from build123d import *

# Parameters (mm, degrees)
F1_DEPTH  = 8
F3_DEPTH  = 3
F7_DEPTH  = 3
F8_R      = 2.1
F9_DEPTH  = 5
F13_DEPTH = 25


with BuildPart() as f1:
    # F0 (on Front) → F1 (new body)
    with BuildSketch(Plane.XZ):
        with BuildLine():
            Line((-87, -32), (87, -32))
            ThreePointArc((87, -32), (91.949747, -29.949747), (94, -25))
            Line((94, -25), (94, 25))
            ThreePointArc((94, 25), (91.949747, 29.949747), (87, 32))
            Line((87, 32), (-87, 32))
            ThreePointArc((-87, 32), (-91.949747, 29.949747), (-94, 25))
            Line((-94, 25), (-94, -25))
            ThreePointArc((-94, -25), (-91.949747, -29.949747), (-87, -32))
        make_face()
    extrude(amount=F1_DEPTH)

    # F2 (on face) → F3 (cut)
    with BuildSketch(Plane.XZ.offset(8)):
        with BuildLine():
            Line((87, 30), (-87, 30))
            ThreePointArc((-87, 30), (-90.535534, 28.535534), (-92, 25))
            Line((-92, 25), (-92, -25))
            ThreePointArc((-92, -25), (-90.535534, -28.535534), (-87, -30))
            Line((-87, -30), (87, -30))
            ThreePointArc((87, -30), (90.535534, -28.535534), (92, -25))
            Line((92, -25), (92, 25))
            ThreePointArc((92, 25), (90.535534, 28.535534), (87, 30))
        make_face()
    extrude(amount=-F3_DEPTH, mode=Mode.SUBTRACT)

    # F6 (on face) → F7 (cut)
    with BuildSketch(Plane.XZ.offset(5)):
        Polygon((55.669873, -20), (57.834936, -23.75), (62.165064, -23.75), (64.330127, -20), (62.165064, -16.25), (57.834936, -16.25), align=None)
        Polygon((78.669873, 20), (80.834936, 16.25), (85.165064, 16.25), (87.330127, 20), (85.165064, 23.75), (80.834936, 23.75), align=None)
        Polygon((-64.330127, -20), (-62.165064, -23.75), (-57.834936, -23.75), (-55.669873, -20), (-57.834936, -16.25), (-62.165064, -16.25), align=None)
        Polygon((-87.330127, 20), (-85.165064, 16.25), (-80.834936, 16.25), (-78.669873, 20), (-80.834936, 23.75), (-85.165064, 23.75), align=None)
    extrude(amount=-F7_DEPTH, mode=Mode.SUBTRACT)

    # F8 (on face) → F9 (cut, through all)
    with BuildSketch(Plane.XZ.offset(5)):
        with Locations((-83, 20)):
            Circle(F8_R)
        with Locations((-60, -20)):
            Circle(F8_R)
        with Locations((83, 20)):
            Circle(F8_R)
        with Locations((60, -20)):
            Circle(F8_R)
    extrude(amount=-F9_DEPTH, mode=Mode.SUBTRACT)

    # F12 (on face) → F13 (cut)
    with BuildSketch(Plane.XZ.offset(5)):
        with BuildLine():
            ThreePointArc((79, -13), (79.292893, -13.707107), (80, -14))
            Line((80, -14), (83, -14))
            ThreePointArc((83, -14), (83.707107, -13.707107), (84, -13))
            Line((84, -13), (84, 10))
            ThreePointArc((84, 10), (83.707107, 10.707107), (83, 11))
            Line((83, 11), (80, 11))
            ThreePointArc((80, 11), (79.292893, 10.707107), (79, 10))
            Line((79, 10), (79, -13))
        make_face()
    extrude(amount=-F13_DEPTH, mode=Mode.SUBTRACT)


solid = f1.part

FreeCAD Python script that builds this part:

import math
import FreeCAD as App
import Part
import Sketcher
from FreeCAD import Vector
Q = App.Units.Quantity

doc = App.newDocument("Part")
body = doc.addObject("PartDesign::Body", "Body")

sketch1 = body.newObject("Sketcher::SketchObject", "Sketch")
sketch1.AttachmentSupport = (doc.getObject("XZ_Plane"), [""])
sketch1.MapMode = "FlatFace"
sketch1.addGeometry([
    Part.LineSegment(Vector(-87, -32, 0), Vector(87, -32, 0)),
    Part.ArcOfCircle(Part.Circle(Vector(87, -25, 0), Vector(0, 0, 1), 7), math.radians(-90), math.radians(0)),
    Part.LineSegment(Vector(94, -25, 0), Vector(94, 25, 0)),
    Part.ArcOfCircle(Part.Circle(Vector(87, 25, 0), Vector(0, 0, 1), 7), math.radians(0), math.radians(90)),
    Part.LineSegment(Vector(87, 32, 0), Vector(-87, 32, 0)),
    Part.ArcOfCircle(Part.Circle(Vector(-87, 25, 0), Vector(0, 0, 1), 7), math.radians(90), math.radians(180)),
    Part.LineSegment(Vector(-94, 25, 0), Vector(-94, -25, 0)),
    Part.ArcOfCircle(Part.Circle(Vector(-87, -25, 0), Vector(0, 0, 1), 7), math.radians(-180), math.radians(-90)),
], False)
sketch1.addConstraint([
    Sketcher.Constraint("Tangent", 0, 2, 1, 1),
    Sketcher.Constraint("Tangent", 1, 2, 2, 1),
    Sketcher.Constraint("Tangent", 2, 2, 3, 1),
    Sketcher.Constraint("Tangent", 3, 2, 4, 1),
    Sketcher.Constraint("Tangent", 4, 2, 5, 1),
    Sketcher.Constraint("Tangent", 5, 2, 6, 1),
    Sketcher.Constraint("Tangent", 6, 2, 7, 1),
    Sketcher.Constraint("Tangent", 7, 2, 0, 1),
    Sketcher.Constraint("Horizontal", 0),
    Sketcher.Constraint("Vertical", 2),
    Sketcher.Constraint("Horizontal", 4),
    Sketcher.Constraint("Vertical", 6),
    Sketcher.Constraint("Equal", 1, 3),
    Sketcher.Constraint("Equal", 3, 5),
    Sketcher.Constraint("Equal", 5, 7),
    Sketcher.Constraint("Symmetric", 1, 3, 5, 3, -1, 1),
    Sketcher.Constraint("Radius", 1, Q("7.000002 mm")),
    Sketcher.Constraint("DistanceX", 0, 1, 0, 2, Q("174 mm")),
    Sketcher.Constraint("DistanceY", 2, 1, 2, 2, Q("50 mm")),
])
pad1 = body.newObject("PartDesign::Pad", "Pad")
pad1.Profile = sketch1
pad1.Length = 8

sketch2 = body.newObject("Sketcher::SketchObject", "Sketch001")
sketch2.AttachmentSupport = (doc.getObject("XZ_Plane"), [""])
sketch2.MapMode = "FlatFace"
sketch2.AttachmentOffset = App.Placement(Vector(0, 0, 8), App.Rotation())
sketch2.addGeometry([
    Part.LineSegment(Vector(87, 30, 0), Vector(-87, 30, 0)),
    Part.ArcOfCircle(Part.Circle(Vector(-87, 25, 0), Vector(0, 0, 1), 5), math.radians(90), math.radians(180)),
    Part.LineSegment(Vector(-92, 25, 0), Vector(-92, -25, 0)),
    Part.ArcOfCircle(Part.Circle(Vector(-87, -25, 0), Vector(0, 0, 1), 5), math.radians(180), math.radians(270)),
    Part.LineSegment(Vector(-87, -30, 0), Vector(87, -30, 0)),
    Part.ArcOfCircle(Part.Circle(Vector(87, -25, 0), Vector(0, 0, 1), 5), math.radians(-90), math.radians(0)),
    Part.LineSegment(Vector(92, -25, 0), Vector(92, 25, 0)),
    Part.ArcOfCircle(Part.Circle(Vector(87, 25, 0), Vector(0, 0, 1), 5), math.radians(0), math.radians(90)),
], False)
sketch2.addConstraint([
    Sketcher.Constraint("Tangent", 0, 2, 1, 1),
    Sketcher.Constraint("Tangent", 1, 2, 2, 1),
    Sketcher.Constraint("Tangent", 2, 2, 3, 1),
    Sketcher.Constraint("Tangent", 3, 2, 4, 1),
    Sketcher.Constraint("Tangent", 4, 2, 5, 1),
    Sketcher.Constraint("Tangent", 5, 2, 6, 1),
    Sketcher.Constraint("Tangent", 6, 2, 7, 1),
    Sketcher.Constraint("Tangent", 7, 2, 0, 1),
    Sketcher.Constraint("Horizontal", 0),
    Sketcher.Constraint("Vertical", 2),
    Sketcher.Constraint("Horizontal", 4),
    Sketcher.Constraint("Vertical", 6),
    Sketcher.Constraint("Equal", 1, 3),
    Sketcher.Constraint("Equal", 3, 5),
    Sketcher.Constraint("Equal", 5, 7),
    Sketcher.Constraint("Symmetric", 1, 3, 5, 3, -1, 1),
    Sketcher.Constraint("Radius", 1, Q("5 mm")),
    Sketcher.Constraint("DistanceX", 0, 2, 0, 1, Q("174 mm")),
    Sketcher.Constraint("DistanceY", 2, 2, 2, 1, Q("50 mm")),
])
pocket1 = body.newObject("PartDesign::Pocket", "Pocket")
pocket1.Profile = sketch2
pocket1.Length = 3

sketch3 = body.newObject("Sketcher::SketchObject", "Sketch002")
sketch3.AttachmentSupport = (doc.getObject("XZ_Plane"), [""])
sketch3.MapMode = "FlatFace"
sketch3.AttachmentOffset = App.Placement(Vector(0, 0, 5), App.Rotation())
sketch3.addGeometry([
    Part.LineSegment(Vector(55.7, -20, 0), Vector(57.8, -23.8, 0)),
    Part.LineSegment(Vector(57.8, -23.8, 0), Vector(62.2, -23.8, 0)),
    Part.LineSegment(Vector(62.2, -23.8, 0), Vector(64.3, -20, 0)),
    Part.LineSegment(Vector(64.3, -20, 0), Vector(62.2, -16.2, 0)),
    Part.LineSegment(Vector(62.2, -16.2, 0), Vector(57.8, -16.2, 0)),
    Part.LineSegment(Vector(57.8, -16.2, 0), Vector(55.7, -20, 0)),
    Part.LineSegment(Vector(78.7, 20, 0), Vector(80.8, 16.2, 0)),
    Part.LineSegment(Vector(80.8, 16.2, 0), Vector(85.2, 16.2, 0)),
    Part.LineSegment(Vector(85.2, 16.2, 0), Vector(87.3, 20, 0)),
    Part.LineSegment(Vector(87.3, 20, 0), Vector(85.2, 23.8, 0)),
    Part.LineSegment(Vector(85.2, 23.8, 0), Vector(80.8, 23.8, 0)),
    Part.LineSegment(Vector(80.8, 23.8, 0), Vector(78.7, 20, 0)),
    Part.LineSegment(Vector(-64.3, -20, 0), Vector(-62.2, -23.8, 0)),
    Part.LineSegment(Vector(-62.2, -23.8, 0), Vector(-57.8, -23.8, 0)),
    Part.LineSegment(Vector(-57.8, -23.8, 0), Vector(-55.7, -20, 0)),
    Part.LineSegment(Vector(-55.7, -20, 0), Vector(-57.8, -16.2, 0)),
    Part.LineSegment(Vector(-57.8, -16.2, 0), Vector(-62.2, -16.2, 0)),
    Part.LineSegment(Vector(-62.2, -16.2, 0), Vector(-64.3, -20, 0)),
    Part.LineSegment(Vector(-87.3, 20, 0), Vector(-85.2, 16.2, 0)),
    Part.LineSegment(Vector(-85.2, 16.2, 0), Vector(-80.8, 16.2, 0)),
    Part.LineSegment(Vector(-80.8, 16.2, 0), Vector(-78.7, 20, 0)),
    Part.LineSegment(Vector(-78.7, 20, 0), Vector(-80.8, 23.8, 0)),
    Part.LineSegment(Vector(-80.8, 23.8, 0), Vector(-85.2, 23.8, 0)),
    Part.LineSegment(Vector(-85.2, 23.8, 0), Vector(-87.3, 20, 0)),
], False)
sketch3.addConstraint([
    Sketcher.Constraint("Coincident", 0, 2, 1, 1),
    Sketcher.Constraint("Coincident", 1, 2, 2, 1),
    Sketcher.Constraint("Coincident", 2, 2, 3, 1),
    Sketcher.Constraint("Coincident", 3, 2, 4, 1),
    Sketcher.Constraint("Coincident", 4, 2, 5, 1),
    Sketcher.Constraint("Coincident", 5, 2, 0, 1),
    Sketcher.Constraint("Coincident", 6, 2, 7, 1),
    Sketcher.Constraint("Coincident", 7, 2, 8, 1),
    Sketcher.Constraint("Coincident", 8, 2, 9, 1),
    Sketcher.Constraint("Coincident", 9, 2, 10, 1),
    Sketcher.Constraint("Coincident", 10, 2, 11, 1),
    Sketcher.Constraint("Coincident", 11, 2, 6, 1),
    Sketcher.Constraint("Coincident", 12, 2, 13, 1),
    Sketcher.Constraint("Coincident", 13, 2, 14, 1),
    Sketcher.Constraint("Coincident", 14, 2, 15, 1),
    Sketcher.Constraint("Coincident", 15, 2, 16, 1),
    Sketcher.Constraint("Coincident", 16, 2, 17, 1),
    Sketcher.Constraint("Coincident", 17, 2, 12, 1),
    Sketcher.Constraint("Coincident", 18, 2, 19, 1),
    Sketcher.Constraint("Coincident", 19, 2, 20, 1),
    Sketcher.Constraint("Coincident", 20, 2, 21, 1),
    Sketcher.Constraint("Coincident", 21, 2, 22, 1),
    Sketcher.Constraint("Coincident", 22, 2, 23, 1),
    Sketcher.Constraint("Coincident", 23, 2, 18, 1),
    Sketcher.Constraint("Horizontal", 1),
    Sketcher.Constraint("Horizontal", 4),
    Sketcher.Constraint("Horizontal", 7),
    Sketcher.Constraint("Horizontal", 10),
    Sketcher.Constraint("Horizontal", 13),
    Sketcher.Constraint("Horizontal", 16),
    Sketcher.Constraint("Horizontal", 19),
    Sketcher.Constraint("Horizontal", 22),
    Sketcher.Constraint("Symmetric", 1, 2, 12, 2, -2),
    Sketcher.Constraint("Symmetric", 5, 2, 14, 2, -2),
    Sketcher.Constraint("Symmetric", 4, 2, 15, 2, -2),
    Sketcher.Constraint("Symmetric", 2, 2, 17, 2, -2),
    Sketcher.Constraint("Symmetric", 7, 2, 18, 2, -2),
    Sketcher.Constraint("Symmetric", 11, 2, 20, 2, -2),
    Sketcher.Constraint("Symmetric", 10, 2, 21, 2, -2),
    Sketcher.Constraint("Symmetric", 8, 2, 23, 2, -2),
    Sketcher.Constraint("Parallel", 0, 3),
    Sketcher.Constraint("Parallel", 2, 5),
    Sketcher.Constraint("Parallel", 3, 6),
    Sketcher.Constraint("Parallel", 5, 8),
    Sketcher.Constraint("Parallel", 6, 9),
    Sketcher.Constraint("Parallel", 8, 11),
    Sketcher.Constraint("Parallel", 9, 12),
    Sketcher.Constraint("Parallel", 11, 14),
    Sketcher.Constraint("Parallel", 14, 17),
    Sketcher.Constraint("Parallel", 17, 20),
    Sketcher.Constraint("Parallel", 20, 23),
    Sketcher.Constraint("Horizontal", 2, 2, 5, 2),
    Sketcher.Constraint("Horizontal", 8, 2, 11, 2),
    Sketcher.Constraint("Vertical", 1, 2, 3, 2),
    Sketcher.Constraint("Vertical", 7, 2, 9, 2),
    Sketcher.Constraint("Equal", 4, 7),
    Sketcher.Constraint("Equal", 5, 6),
    Sketcher.Constraint("Angle", 0, Q("-60.000006 deg")),
    Sketcher.Constraint("DistanceY", 2, 2, -1, 1, Q("20 mm")),
    Sketcher.Constraint("DistanceY", -1, 1, 8, 2, Q("20 mm")),
    Sketcher.Constraint("DistanceX", 4, 2, 6, 2, Q("23 mm")),
    Sketcher.Constraint("DistanceX", 12, 2, 0, 2, Q("120 mm")),
    Sketcher.Constraint("DistanceY", 1, 2, 3, 2, Q("7.5 mm")),
    Sketcher.Constraint("DistanceX", 1, 1, 1, 2, Q("4.330128 mm")),
])
pocket2 = body.newObject("PartDesign::Pocket", "Pocket001")
pocket2.Profile = sketch3
pocket2.Length = 3

sketch4 = body.newObject("Sketcher::SketchObject", "Sketch003")
sketch4.AttachmentSupport = (doc.getObject("XZ_Plane"), [""])
sketch4.MapMode = "FlatFace"
sketch4.AttachmentOffset = App.Placement(Vector(0, 0, 5), App.Rotation())
sketch4.addGeometry([
    Part.Circle(Vector(-83, 20, 0), Vector(0, 0, 1), 2.1),
    Part.Circle(Vector(-60, -20, 0), Vector(0, 0, 1), 2.1),
    Part.Circle(Vector(83, 20, 0), Vector(0, 0, 1), 2.1),
    Part.Circle(Vector(60, -20, 0), Vector(0, 0, 1), 2.1),
], False)
sketch4.addConstraint([
    Sketcher.Constraint("Equal", 0, 1),
    Sketcher.Constraint("Equal", 1, 2),
    Sketcher.Constraint("Equal", 2, 3),
    Sketcher.Constraint("Symmetric", 0, 3, 2, 3, -2),
    Sketcher.Constraint("Symmetric", 1, 3, 3, 3, -2),
    Sketcher.Constraint("Diameter", 0, Q("4.2 mm")),
    Sketcher.Constraint("DistanceX", 0, 3, -1, 1, Q("83 mm")),
    Sketcher.Constraint("DistanceY", -1, 1, 0, 3, Q("20 mm")),
    Sketcher.Constraint("DistanceX", 1, 3, -1, 1, Q("60 mm")),
    Sketcher.Constraint("DistanceY", 1, 3, -1, 1, Q("20 mm")),
])
pocket3 = body.newObject("PartDesign::Pocket", "Pocket002")
pocket3.Profile = sketch4
pocket3.Type = "ThroughAll"

sketch5 = body.newObject("Sketcher::SketchObject", "Sketch004")
sketch5.AttachmentSupport = (doc.getObject("XZ_Plane"), [""])
sketch5.MapMode = "FlatFace"
sketch5.AttachmentOffset = App.Placement(Vector(0, 0, 5), App.Rotation())
sketch5.addGeometry([
    Part.ArcOfCircle(Part.Circle(Vector(80, -13, 0), Vector(0, 0, 1), 1), math.radians(180), math.radians(270)),
    Part.LineSegment(Vector(80, -14, 0), Vector(83, -14, 0)),
    Part.ArcOfCircle(Part.Circle(Vector(83, -13, 0), Vector(0, 0, 1), 1), math.radians(-90), math.radians(0)),
    Part.LineSegment(Vector(84, -13, 0), Vector(84, 10, 0)),
    Part.ArcOfCircle(Part.Circle(Vector(83, 10, 0), Vector(0, 0, 1), 1), math.radians(0), math.radians(90)),
    Part.LineSegment(Vector(83, 11, 0), Vector(80, 11, 0)),
    Part.ArcOfCircle(Part.Circle(Vector(80, 10, 0), Vector(0, 0, 1), 1), math.radians(90), math.radians(180)),
    Part.LineSegment(Vector(79, 10, 0), Vector(79, -13, 0)),
], False)
sketch5.addConstraint([
    Sketcher.Constraint("Tangent", 0, 2, 1, 1),
    Sketcher.Constraint("Tangent", 1, 2, 2, 1),
    Sketcher.Constraint("Tangent", 2, 2, 3, 1),
    Sketcher.Constraint("Tangent", 3, 2, 4, 1),
    Sketcher.Constraint("Tangent", 4, 2, 5, 1),
    Sketcher.Constraint("Tangent", 5, 2, 6, 1),
    Sketcher.Constraint("Tangent", 6, 2, 7, 1),
    Sketcher.Constraint("Tangent", 7, 2, 0, 1),
    Sketcher.Constraint("Horizontal", 1),
    Sketcher.Constraint("Vertical", 3),
    Sketcher.Constraint("Horizontal", 5),
    Sketcher.Constraint("Vertical", 7),
    Sketcher.Constraint("Equal", 0, 2),
    Sketcher.Constraint("Equal", 2, 4),
    Sketcher.Constraint("Equal", 4, 6),
    Sketcher.Constraint("Radius", 0, Q("0.999999 mm")),
    Sketcher.Constraint("DistanceX", 1, 1, 1, 2, Q("3 mm")),
    Sketcher.Constraint("DistanceY", 3, 1, 3, 2, Q("23 mm")),
    Sketcher.Constraint("DistanceX", -1, 1, 0, 3, Q("79.999999 mm")),
    Sketcher.Constraint("DistanceY", 0, 3, -1, 1, Q("13.000001 mm")),
])
pocket4 = body.newObject("PartDesign::Pocket", "Pocket003")
pocket4.Profile = sketch5
pocket4.Length = 25

doc.recompute()
